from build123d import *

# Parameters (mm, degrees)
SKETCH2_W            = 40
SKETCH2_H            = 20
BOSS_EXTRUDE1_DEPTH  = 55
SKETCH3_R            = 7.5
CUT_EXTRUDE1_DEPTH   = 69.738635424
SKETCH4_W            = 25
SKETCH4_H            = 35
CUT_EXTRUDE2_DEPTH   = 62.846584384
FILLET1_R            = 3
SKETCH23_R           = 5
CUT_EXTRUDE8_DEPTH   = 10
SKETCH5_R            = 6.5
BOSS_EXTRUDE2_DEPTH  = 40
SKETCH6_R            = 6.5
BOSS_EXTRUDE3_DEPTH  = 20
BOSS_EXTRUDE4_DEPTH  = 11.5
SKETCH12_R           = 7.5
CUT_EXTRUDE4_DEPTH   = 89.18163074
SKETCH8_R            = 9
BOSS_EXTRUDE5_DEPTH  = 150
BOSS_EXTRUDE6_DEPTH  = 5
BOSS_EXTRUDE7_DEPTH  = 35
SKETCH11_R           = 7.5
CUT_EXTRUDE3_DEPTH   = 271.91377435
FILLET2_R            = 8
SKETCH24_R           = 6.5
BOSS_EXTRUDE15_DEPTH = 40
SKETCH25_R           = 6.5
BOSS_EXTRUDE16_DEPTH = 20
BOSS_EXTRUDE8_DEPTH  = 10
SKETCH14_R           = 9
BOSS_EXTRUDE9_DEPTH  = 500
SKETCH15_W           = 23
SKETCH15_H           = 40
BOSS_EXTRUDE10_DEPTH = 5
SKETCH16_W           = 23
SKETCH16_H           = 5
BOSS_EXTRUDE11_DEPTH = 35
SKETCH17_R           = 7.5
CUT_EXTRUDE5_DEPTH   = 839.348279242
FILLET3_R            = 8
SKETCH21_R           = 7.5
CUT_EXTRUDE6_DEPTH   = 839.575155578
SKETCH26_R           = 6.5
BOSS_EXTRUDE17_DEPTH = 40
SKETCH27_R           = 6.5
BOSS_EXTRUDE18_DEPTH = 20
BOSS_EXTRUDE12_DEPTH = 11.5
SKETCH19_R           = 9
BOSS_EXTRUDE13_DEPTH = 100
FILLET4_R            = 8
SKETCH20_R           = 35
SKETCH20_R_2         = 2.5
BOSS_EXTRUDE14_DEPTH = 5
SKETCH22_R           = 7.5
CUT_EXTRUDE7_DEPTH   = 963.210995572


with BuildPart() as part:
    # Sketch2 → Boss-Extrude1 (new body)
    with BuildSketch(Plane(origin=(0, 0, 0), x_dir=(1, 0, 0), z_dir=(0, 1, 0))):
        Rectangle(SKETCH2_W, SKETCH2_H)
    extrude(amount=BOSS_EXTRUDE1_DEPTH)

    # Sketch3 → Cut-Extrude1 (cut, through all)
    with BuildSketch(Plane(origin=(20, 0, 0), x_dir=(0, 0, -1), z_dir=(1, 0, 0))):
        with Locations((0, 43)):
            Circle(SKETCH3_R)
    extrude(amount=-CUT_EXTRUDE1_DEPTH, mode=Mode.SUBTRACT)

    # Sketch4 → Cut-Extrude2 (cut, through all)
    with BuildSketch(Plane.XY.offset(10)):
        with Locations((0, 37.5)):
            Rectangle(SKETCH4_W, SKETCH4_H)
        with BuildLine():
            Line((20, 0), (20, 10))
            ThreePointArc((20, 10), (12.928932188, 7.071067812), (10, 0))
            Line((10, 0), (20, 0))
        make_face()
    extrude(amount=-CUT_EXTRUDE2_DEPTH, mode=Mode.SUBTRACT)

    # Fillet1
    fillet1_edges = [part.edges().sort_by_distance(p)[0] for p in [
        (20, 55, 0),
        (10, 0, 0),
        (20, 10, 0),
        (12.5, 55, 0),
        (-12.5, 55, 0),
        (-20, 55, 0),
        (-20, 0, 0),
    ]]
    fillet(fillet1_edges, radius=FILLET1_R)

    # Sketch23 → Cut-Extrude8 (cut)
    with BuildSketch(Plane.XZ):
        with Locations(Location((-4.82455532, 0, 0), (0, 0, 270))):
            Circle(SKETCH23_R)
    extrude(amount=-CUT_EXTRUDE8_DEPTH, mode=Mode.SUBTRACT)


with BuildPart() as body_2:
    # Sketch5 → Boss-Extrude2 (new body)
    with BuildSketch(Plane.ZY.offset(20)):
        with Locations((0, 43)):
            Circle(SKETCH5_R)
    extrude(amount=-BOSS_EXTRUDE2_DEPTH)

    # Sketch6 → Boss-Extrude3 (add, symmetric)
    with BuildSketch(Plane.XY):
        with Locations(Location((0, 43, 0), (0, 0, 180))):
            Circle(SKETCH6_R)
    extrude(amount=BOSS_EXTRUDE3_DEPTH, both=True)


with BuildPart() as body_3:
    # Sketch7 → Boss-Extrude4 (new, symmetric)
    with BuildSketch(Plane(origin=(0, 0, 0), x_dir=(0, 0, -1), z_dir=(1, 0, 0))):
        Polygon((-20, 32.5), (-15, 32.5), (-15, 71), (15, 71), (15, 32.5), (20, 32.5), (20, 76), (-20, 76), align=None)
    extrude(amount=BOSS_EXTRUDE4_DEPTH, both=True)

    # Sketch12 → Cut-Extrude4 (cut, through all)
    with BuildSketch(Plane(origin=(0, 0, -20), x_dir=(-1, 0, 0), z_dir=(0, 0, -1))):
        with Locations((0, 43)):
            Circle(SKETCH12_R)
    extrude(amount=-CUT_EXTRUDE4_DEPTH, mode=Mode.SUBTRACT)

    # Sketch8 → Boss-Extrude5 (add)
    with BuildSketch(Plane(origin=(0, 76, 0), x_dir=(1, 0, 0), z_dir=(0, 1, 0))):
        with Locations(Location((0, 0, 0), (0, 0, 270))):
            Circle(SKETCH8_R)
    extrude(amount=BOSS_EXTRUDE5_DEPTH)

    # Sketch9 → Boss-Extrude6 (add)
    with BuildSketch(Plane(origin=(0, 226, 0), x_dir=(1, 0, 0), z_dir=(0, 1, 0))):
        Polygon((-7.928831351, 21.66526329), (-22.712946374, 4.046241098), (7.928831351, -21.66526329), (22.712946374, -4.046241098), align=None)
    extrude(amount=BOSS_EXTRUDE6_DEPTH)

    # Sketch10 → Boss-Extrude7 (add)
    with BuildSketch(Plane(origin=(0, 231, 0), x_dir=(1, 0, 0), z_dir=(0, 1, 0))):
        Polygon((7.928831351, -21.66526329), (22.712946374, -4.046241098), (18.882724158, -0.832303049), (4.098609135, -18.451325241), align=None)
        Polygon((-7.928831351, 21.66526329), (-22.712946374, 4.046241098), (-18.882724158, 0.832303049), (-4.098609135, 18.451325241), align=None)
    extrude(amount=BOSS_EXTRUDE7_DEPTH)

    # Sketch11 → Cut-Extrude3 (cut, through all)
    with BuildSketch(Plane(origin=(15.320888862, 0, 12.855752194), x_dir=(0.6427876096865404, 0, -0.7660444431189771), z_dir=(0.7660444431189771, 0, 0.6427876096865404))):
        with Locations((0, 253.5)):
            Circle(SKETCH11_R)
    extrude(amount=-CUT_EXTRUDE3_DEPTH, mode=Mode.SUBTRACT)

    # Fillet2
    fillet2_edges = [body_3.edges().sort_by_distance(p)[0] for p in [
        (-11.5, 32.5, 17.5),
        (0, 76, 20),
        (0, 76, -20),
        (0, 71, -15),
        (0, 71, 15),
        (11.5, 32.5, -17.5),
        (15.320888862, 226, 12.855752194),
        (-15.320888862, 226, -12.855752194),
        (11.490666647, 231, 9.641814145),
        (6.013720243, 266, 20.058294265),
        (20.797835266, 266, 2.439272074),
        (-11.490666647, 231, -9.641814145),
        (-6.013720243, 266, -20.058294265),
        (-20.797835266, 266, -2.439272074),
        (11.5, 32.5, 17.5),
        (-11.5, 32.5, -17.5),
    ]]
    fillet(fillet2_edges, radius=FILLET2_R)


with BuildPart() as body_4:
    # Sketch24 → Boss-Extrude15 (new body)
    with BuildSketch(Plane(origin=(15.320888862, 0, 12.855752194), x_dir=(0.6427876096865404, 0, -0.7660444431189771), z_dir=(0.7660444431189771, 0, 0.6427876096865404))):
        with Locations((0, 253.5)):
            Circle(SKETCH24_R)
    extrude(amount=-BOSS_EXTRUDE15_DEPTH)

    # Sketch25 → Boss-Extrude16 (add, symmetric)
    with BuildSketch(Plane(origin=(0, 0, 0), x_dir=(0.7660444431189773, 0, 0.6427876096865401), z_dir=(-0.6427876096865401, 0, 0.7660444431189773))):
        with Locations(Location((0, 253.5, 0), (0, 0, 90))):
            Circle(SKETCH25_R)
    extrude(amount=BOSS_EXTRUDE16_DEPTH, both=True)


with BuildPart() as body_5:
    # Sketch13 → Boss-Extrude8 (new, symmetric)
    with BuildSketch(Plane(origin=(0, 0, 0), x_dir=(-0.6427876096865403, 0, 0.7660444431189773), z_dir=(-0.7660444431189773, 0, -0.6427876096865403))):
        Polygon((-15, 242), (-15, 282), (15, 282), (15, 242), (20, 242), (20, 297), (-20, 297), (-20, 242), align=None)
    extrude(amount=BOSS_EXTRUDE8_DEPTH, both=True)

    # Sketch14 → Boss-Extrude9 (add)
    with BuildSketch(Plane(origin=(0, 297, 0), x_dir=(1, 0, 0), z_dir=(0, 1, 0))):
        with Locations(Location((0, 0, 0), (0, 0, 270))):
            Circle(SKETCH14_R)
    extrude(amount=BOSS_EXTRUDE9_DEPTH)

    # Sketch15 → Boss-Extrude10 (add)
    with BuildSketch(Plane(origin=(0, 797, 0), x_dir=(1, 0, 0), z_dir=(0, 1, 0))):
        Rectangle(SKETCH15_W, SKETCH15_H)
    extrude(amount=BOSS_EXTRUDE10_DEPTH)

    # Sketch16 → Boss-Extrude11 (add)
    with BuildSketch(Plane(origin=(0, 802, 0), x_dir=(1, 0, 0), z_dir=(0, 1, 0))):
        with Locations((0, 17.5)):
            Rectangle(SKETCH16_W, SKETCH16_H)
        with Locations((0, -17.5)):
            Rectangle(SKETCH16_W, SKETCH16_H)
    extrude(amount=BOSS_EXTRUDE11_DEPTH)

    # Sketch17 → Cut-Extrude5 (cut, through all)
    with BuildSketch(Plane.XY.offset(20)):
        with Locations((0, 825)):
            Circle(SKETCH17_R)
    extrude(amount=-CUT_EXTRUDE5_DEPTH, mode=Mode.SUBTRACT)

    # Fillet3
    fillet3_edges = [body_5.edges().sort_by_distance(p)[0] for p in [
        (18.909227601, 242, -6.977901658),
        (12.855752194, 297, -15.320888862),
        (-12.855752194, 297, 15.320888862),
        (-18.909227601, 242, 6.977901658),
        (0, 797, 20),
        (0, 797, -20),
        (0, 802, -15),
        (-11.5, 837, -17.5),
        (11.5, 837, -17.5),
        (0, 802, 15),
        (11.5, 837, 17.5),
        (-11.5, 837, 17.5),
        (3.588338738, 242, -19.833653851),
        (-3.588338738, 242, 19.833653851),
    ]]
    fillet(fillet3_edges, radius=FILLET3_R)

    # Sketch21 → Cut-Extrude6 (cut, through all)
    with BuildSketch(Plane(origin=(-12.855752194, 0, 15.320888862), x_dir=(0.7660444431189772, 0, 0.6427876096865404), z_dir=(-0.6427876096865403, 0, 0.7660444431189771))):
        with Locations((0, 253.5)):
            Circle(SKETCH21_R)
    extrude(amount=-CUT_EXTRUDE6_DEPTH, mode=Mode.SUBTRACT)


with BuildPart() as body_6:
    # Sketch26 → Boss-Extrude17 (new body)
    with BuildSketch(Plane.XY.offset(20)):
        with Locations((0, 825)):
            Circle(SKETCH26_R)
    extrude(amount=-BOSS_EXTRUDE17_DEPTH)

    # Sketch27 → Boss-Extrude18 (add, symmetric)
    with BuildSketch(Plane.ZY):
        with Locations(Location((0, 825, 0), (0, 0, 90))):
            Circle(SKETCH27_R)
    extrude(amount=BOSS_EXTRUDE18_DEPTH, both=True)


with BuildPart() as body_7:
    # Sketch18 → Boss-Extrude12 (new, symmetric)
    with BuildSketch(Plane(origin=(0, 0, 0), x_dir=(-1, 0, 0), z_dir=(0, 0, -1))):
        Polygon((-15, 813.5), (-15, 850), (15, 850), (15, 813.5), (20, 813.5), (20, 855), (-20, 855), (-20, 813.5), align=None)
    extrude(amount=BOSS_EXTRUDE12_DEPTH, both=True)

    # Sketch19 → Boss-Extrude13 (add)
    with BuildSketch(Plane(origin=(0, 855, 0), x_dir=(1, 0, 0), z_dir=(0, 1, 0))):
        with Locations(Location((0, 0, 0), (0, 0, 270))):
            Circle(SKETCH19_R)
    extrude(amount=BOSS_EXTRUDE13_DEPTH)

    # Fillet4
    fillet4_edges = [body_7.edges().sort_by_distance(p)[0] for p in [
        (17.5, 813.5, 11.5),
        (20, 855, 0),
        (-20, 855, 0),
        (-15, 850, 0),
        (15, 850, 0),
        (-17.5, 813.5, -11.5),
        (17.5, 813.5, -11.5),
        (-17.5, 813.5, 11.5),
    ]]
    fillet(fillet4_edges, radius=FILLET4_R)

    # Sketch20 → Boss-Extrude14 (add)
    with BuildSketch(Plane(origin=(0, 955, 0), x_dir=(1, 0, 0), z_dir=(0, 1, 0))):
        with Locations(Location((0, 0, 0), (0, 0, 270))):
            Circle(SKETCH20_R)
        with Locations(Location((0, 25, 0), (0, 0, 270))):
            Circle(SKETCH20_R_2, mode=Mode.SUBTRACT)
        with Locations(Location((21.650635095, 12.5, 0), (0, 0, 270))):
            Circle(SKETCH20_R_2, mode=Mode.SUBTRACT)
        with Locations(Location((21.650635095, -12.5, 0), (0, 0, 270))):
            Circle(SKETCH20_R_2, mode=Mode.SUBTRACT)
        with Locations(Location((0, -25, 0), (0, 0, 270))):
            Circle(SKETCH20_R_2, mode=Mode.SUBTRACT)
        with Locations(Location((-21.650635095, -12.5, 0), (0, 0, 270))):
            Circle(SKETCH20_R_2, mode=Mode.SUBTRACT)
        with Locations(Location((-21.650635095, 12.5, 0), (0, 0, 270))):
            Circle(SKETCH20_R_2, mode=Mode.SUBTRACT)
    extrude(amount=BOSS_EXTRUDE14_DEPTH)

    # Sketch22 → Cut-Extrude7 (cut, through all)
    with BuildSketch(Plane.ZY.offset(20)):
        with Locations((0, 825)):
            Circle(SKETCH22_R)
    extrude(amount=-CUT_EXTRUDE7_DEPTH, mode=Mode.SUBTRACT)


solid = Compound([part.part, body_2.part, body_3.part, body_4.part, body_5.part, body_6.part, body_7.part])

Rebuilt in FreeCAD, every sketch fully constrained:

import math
import FreeCAD as App
import Part
import Sketcher
from FreeCAD import Vector
Q = App.Units.Quantity


def edges_at(feature, points):
    """Names of the edges that pass closest to the given points."""
    edges = feature.Shape.Edges
    near = lambda p: min(range(len(edges)), key=lambda i: edges[i].distToShape(Part.Vertex(*p))[0])
    return sorted({f"Edge{near(p) + 1}" for p in points})

doc = App.newDocument("Part")
body = doc.addObject("PartDesign::Body", "Body")

sketch1 = body.newObject("Sketcher::SketchObject", "Sketch")
sketch1.AttachmentSupport = (doc.getObject("XZ_Plane"), [""])
sketch1.MapMode = "FlatFace"
sketch1.addGeometry(Part.LineSegment(Vector(-20, -10, 0), Vector(-20, 10, 0)), False)
sketch1.addGeometry(Part.LineSegment(Vector(-20, 10, 0), Vector(20, 10, 0)), False)
sketch1.addGeometry(Part.LineSegment(Vector(20, 10, 0), Vector(20, -10, 0)), False)
sketch1.addGeometry(Part.LineSegment(Vector(20, -10, 0), Vector(-20, -10, 0)), False)
sketch1.addConstraint(Sketcher.Constraint("Coincident", 0, 2, 1, 1))
sketch1.addConstraint(Sketcher.Constraint("Coincident", 1, 2, 2, 1))
sketch1.addConstraint(Sketcher.Constraint("Coincident", 2, 2, 3, 1))
sketch1.addConstraint(Sketcher.Constraint("Coincident", 3, 2, 0, 1))
sketch1.addConstraint(Sketcher.Constraint("Vertical", 0))
sketch1.addConstraint(Sketcher.Constraint("Horizontal", 1))
sketch1.addConstraint(Sketcher.Constraint("Vertical", 2))
sketch1.addConstraint(Sketcher.Constraint("Horizontal", 3))
sketch1.addConstraint(Sketcher.Constraint("Symmetric", 0, 2, 2, 2, -1, 1))
sketch1.addConstraint(Sketcher.Constraint("DistanceX", 1, 1, 1, 2, Q("40 mm")))
sketch1.addConstraint(Sketcher.Constraint("DistanceY", 0, 1, 0, 2, Q("20 mm")))
pad1 = body.newObject("PartDesign::Pad", "Pad")
pad1.Profile = sketch1
pad1.Length = 55
pad1.Reversed = True

sketch2 = body.newObject("Sketcher::SketchObject", "Sketch001")
sketch2.AttachmentSupport = (doc.getObject("YZ_Plane"), [""])
sketch2.MapMode = "FlatFace"
sketch2.AttachmentOffset = App.Placement(Vector(0, 0, 20), App.Rotation())
sketch2.addGeometry(Part.Circle(Vector(43, 0, 0), Vector(0, 0, 1), 8), False)
sketch2.addConstraint(Sketcher.Constraint("PointOnObject", 0, 3, -1))
sketch2.addConstraint(Sketcher.Constraint("Diameter", 0, Q("15 mm")))
sketch2.addConstraint(Sketcher.Constraint("DistanceX", -1, 1, 0, 3, Q("43 mm")))
pocket1 = body.newObject("PartDesign::Pocket", "Pocket")
pocket1.Profile = sketch2
pocket1.Type = "ThroughAll"

sketch3 = body.newObject("Sketcher::SketchObject", "Sketch002")
sketch3.AttachmentSupport = (doc.getObject("XY_Plane"), [""])
sketch3.MapMode = "FlatFace"
sketch3.AttachmentOffset = App.Placement(Vector(0, 0, 10), App.Rotation())
sketch3.addGeometry(Part.LineSegment(Vector(-12, 55, 0), Vector(-12, 20, 0)), False)
sketch3.addGeometry(Part.LineSegment(Vector(-12, 20, 0), Vector(12, 20, 0)), False)
sketch3.addGeometry(Part.LineSegment(Vector(12, 20, 0), Vector(12, 55, 0)), False)
sketch3.addGeometry(Part.LineSegment(Vector(12, 55, 0), Vector(-12, 55, 0)), False)
sketch3.addGeometry(Part.LineSegment(Vector(20, 0, 0), Vector(20, 10, 0)), False)
sketch3.addGeometry(Part.ArcOfCircle(Part.Circle(Vector(20, 0, 0), Vector(0, 0, 1), 10), math.radians(90), math.radians(180)), False)
sketch3.addGeometry(Part.LineSegment(Vector(10, 0, 0), Vector(20, 0, 0)), False)
sketch3.addConstraint(Sketcher.Constraint("Coincident", 0, 2, 1, 1))
sketch3.addConstraint(Sketcher.Constraint("Coincident", 1, 2, 2, 1))
sketch3.addConstraint(Sketcher.Constraint("Coincident", 2, 2, 3, 1))
sketch3.addConstraint(Sketcher.Constraint("Coincident", 3, 2, 0, 1))
sketch3.addConstraint(Sketcher.Constraint("Coincident", 4, 2, 5, 1))
sketch3.addConstraint(Sketcher.Constraint("Coincident", 5, 2, 6, 1))
sketch3.addConstraint(Sketcher.Constraint("Coincident", 6, 2, 4, 1))
sketch3.addConstraint(Sketcher.Constraint("Vertical", 0))
sketch3.addConstraint(Sketcher.Constraint("Horizontal", 1))
sketch3.addConstraint(Sketcher.Constraint("Vertical", 2))
sketch3.addConstraint(Sketcher.Constraint("Horizontal", 3))
sketch3.addConstraint(Sketcher.Constraint("Vertical", 4))
sketch3.addConstraint(Sketcher.Constraint("Horizontal", 6))
sketch3.addConstraint(Sketcher.Constraint("Coincident", 6, 2, 5, 3))
sketch3.addConstraint(Sketcher.Constraint("PointOnObject", 5, 3, -1))
sketch3.addConstraint(Sketcher.Constraint("Radius", 5, Q("10 mm")))
sketch3.addConstraint(Sketcher.Constraint("DistanceX", 1, 1, 1, 2, Q("25 mm")))
sketch3.addConstraint(Sketcher.Constraint("DistanceY", 0, 2, 0, 1, Q("35 mm")))
sketch3.addConstraint(Sketcher.Constraint("DistanceX", -1, 1, 5, 3, Q("20 mm")))
sketch3.addConstraint(Sketcher.Constraint("DistanceY", -1, 1, 0, 2, Q("20 mm")))
sketch3.addConstraint(Sketcher.Constraint("DistanceX", 0, 2, -1, 1, Q("12.5 mm")))
pocket2 = body.newObject("PartDesign::Pocket", "Pocket001")
pocket2.Profile = sketch3
pocket2.Type = "ThroughAll"
doc.recompute()

fillet = body.newObject("PartDesign::Fillet", "Fillet")
fillet.Base = (pocket2, edges_at(pocket2, [
    (20, 55, 0),
    (10, 0, 0),
    (20, 10, 0),
    (12.5, 55, 0),
    (-12.5, 55, 0),
    (-20, 55, 0),
    (-20, 0, 0),
]))
fillet.Radius = 3

sketch4 = body.newObject("Sketcher::SketchObject", "Sketch003")
sketch4.AttachmentSupport = (doc.getObject("XZ_Plane"), [""])
sketch4.MapMode = "FlatFace"
sketch4.addGeometry(Part.Circle(Vector(-5, 0, 0), Vector(0, 0, 1), 5), False)
sketch4.addConstraint(Sketcher.Constraint("PointOnObject", 0, 3, -1))
sketch4.addConstraint(Sketcher.Constraint("Diameter", 0, Q("10 mm")))
sketch4.addConstraint(Sketcher.Constraint("DistanceX", 0, 3, -1, 1, Q("4.824555 mm")))
pocket3 = body.newObject("PartDesign::Pocket", "Pocket002")
pocket3.Profile = sketch4
pocket3.Length = 10
body2 = doc.addObject("PartDesign::Body", "Body001")

sketch5 = body2.newObject("Sketcher::SketchObject", "Sketch004")
sketch5.AttachmentSupport = (doc.getObject("YZ_Plane001"), [""])
sketch5.MapMode = "FlatFace"
sketch5.AttachmentOffset = App.Placement(Vector(0, 0, -20), App.Rotation())
sketch5.addGeometry(Part.Circle(Vector(43, 0, 0), Vector(0, 0, 1), 6), False)
sketch5.addConstraint(Sketcher.Constraint("PointOnObject", 0, 3, -1))
sketch5.addConstraint(Sketcher.Constraint("Diameter", 0, Q("13 mm")))
sketch5.addConstraint(Sketcher.Constraint("DistanceX", -1, 1, 0, 3, Q("43 mm")))
pad2 = body2.newObject("PartDesign::Pad", "Pad001")
pad2.Profile = sketch5
pad2.Length = 40

sketch6 = body2.newObject("Sketcher::SketchObject", "Sketch005")
sketch6.AttachmentSupport = (doc.getObject("XY_Plane001"), [""])
sketch6.MapMode = "FlatFace"
sketch6.addGeometry(Part.Circle(Vector(0, 43, 0), Vector(0, 0, 1), 6), False)
sketch6.addConstraint(Sketcher.Constraint("PointOnObject", 0, 3, -2))
sketch6.addConstraint(Sketcher.Constraint("Diameter", 0, Q("13 mm")))
sketch6.addConstraint(Sketcher.Constraint("DistanceY", -1, 1, 0, 3, Q("43 mm")))
pad3 = body2.newObject("PartDesign::Pad", "Pad002")
pad3.Profile = sketch6
pad3.Length = 40
pad3.Midplane = True
body3 = doc.addObject("PartDesign::Body", "Body002")

sketch7 = body3.newObject("Sketcher::SketchObject", "Sketch006")
sketch7.AttachmentSupport = (doc.getObject("YZ_Plane002"), [""])
sketch7.MapMode = "FlatFace"
sketch7.addGeometry(Part.LineSegment(Vector(32, 20, 0), Vector(32, 15, 0)), False)
sketch7.addGeometry(Part.LineSegment(Vector(32, 15, 0), Vector(71, 15, 0)), False)
sketch7.addGeometry(Part.LineSegment(Vector(71, 15, 0), Vector(71, -15, 0)), False)
sketch7.addGeometry(Part.LineSegment(Vector(71, -15, 0), Vector(32, -15, 0)), False)
sketch7.addGeometry(Part.LineSegment(Vector(32, -15, 0), Vector(32, -20, 0)), False)
sketch7.addGeometry(Part.LineSegment(Vector(32, -20, 0), Vector(76, -20, 0)), False)
sketch7.addGeometry(Part.LineSegment(Vector(76, -20, 0), Vector(76, 20, 0)), False)
sketch7.addGeometry(Part.LineSegment(Vector(76, 20, 0), Vector(32, 20, 0)), False)
sketch7.addConstraint(Sketcher.Constraint("Coincident", 0, 2, 1, 1))
sketch7.addConstraint(Sketcher.Constraint("Coincident", 1, 2, 2, 1))
sketch7.addConstraint(Sketcher.Constraint("Coincident", 2, 2, 3, 1))
sketch7.addConstraint(Sketcher.Constraint("Coincident", 3, 2, 4, 1))
sketch7.addConstraint(Sketcher.Constraint("Coincident", 4, 2, 5, 1))
sketch7.addConstraint(Sketcher.Constraint("Coincident", 5, 2, 6, 1))
sketch7.addConstraint(Sketcher.Constraint("Coincident", 6, 2, 7, 1))
sketch7.addConstraint(Sketcher.Constraint("Coincident", 7, 2, 0, 1))
sketch7.addConstraint(Sketcher.Constraint("Vertical", 0))
sketch7.addConstraint(Sketcher.Constraint("Horizontal", 1))
sketch7.addConstraint(Sketcher.Constraint("Vertical", 2))
sketch7.addConstraint(Sketcher.Constraint("Horizontal", 3))
sketch7.addConstraint(Sketcher.Constraint("Vertical", 4))
sketch7.addConstraint(Sketcher.Constraint("Horizontal", 5))
sketch7.addConstraint(Sketcher.Constraint("Vertical", 6))
sketch7.addConstraint(Sketcher.Constraint("Horizontal", 7))
sketch7.addConstraint(Sketcher.Constraint("Symmetric", 0, 2, 3, 2, -1))
sketch7.addConstraint(Sketcher.Constraint("Equal", 0, 4))
sketch7.addConstraint(Sketcher.Constraint("DistanceY", 0, 2, 0, 1, Q("5 mm")))
sketch7.addConstraint(Sketcher.Constraint("DistanceY", 2, 2, 2, 1, Q("30 mm")))
sketch7.addConstraint(Sketcher.Constraint("DistanceX", 1, 1, 1, 2, Q("38.5 mm")))
sketch7.addConstraint(Sketcher.Constraint("DistanceX", 5, 1, 5, 2, Q("43.5 mm")))
sketch7.addConstraint(Sketcher.Constraint("DistanceX", -1, 1, 1, 2, Q("71 mm")))
pad4 = body3.newObject("PartDesign::Pad", "Pad003")
pad4.Profile = sketch7
pad4.Length = 23
pad4.Midplane = True

sketch8 = body3.newObject("Sketcher::SketchObject", "Sketch007")
sketch8.AttachmentSupport = (doc.getObject("XY_Plane002"), [""])
sketch8.MapMode = "FlatFace"
sketch8.AttachmentOffset = App.Placement(Vector(0, 0, -20), App.Rotation())
sketch8.addGeometry(Part.Circle(Vector(0, 43, 0), Vector(0, 0, 1), 8), False)
sketch8.addConstraint(Sketcher.Constraint("PointOnObject", 0, 3, -2))
sketch8.addConstraint(Sketcher.Constraint("Diameter", 0, Q("15 mm")))
sketch8.addConstraint(Sketcher.Constraint("DistanceY", -1, 1, 0, 3, Q("43 mm")))
pocket4 = body3.newObject("PartDesign::Pocket", "Pocket003")
pocket4.Profile = sketch8
pocket4.Type = "ThroughAll"
pocket4.Reversed = True

sketch9 = body3.newObject("Sketcher::SketchObject", "Sketch008")
sketch9.AttachmentSupport = (doc.getObject("XZ_Plane002"), [""])
sketch9.MapMode = "FlatFace"
sketch9.AttachmentOffset = App.Placement(Vector(0, 0, -76), App.Rotation())
sketch9.addGeometry(Part.Circle(Vector(0, 0, 0), Vector(0, 0, 1), 9), False)
sketch9.addConstraint(Sketcher.Constraint("Coincident", 0, 3, -1, 1))
sketch9.addConstraint(Sketcher.Constraint("Diameter", 0, Q("18 mm")))
pad5 = body3.newObject("PartDesign::Pad", "Pad004")
pad5.Profile = sketch9
pad5.Length = 150
pad5.Reversed = True

sketch10 = body3.newObject("Sketcher::SketchObject", "Sketch009")
sketch10.AttachmentSupport = (doc.getObject("XZ_Plane002"), [""])
sketch10.MapMode = "FlatFace"
sketch10.AttachmentOffset = App.Placement(Vector(0, 0, -226), App.Rotation())
sketch10.addGeometry(Part.LineSegment(Vector(-8, -22, 0), Vector(-23, -4, 0)), False)
sketch10.addGeometry(Part.LineSegment(Vector(-23, -4, 0), Vector(8, 22, 0)), False)
sketch10.addGeometry(Part.LineSegment(Vector(8, 22, 0), Vector(23, 4, 0)), False)
sketch10.addGeometry(Part.LineSegment(Vector(23, 4, 0), Vector(-8, -22, 0)), False)
sketch10.addConstraint(Sketcher.Constraint("Coincident", 0, 2, 1, 1))
sketch10.addConstraint(Sketcher.Constraint("Coincident", 1, 2, 2, 1))
sketch10.addConstraint(Sketcher.Constraint("Coincident", 2, 2, 3, 1))
sketch10.addConstraint(Sketcher.Constraint("Coincident", 3, 2, 0, 1))
sketch10.addConstraint(Sketcher.Constraint("Symmetric", 0, 2, 2, 2, -1, 1))
sketch10.addConstraint(Sketcher.Constraint("Symmetric", 1, 2, 3, 2, -1, 1))
sketch10.addConstraint(Sketcher.Constraint("Perpendicular", 0, 1))
sketch10.addConstraint(Sketcher.Constraint("Angle", 0, Q("130 deg")))
sketch10.addConstraint(Sketcher.Constraint("Distance", 0, Q("23 mm")))
sketch10.addConstraint(Sketcher.Constraint("Distance", 1, Q("40 mm")))
pad6 = body3.newObject("PartDesign::Pad", "Pad005")
pad6.Profile = sketch10
pad6.Length = 5
pad6.Reversed = True

sketch11 = body3.newObject("Sketcher::SketchObject", "Sketch010")
sketch11.AttachmentSupport = (doc.getObject("XZ_Plane002"), [""])
sketch11.MapMode = "FlatFace"
sketch11.AttachmentOffset = App.Placement(Vector(0, 0, -231), App.Rotation())
sketch11.addGeometry(Part.LineSegment(Vector(8, 22, 0), Vector(23, 4, 0)), False)
sketch11.addGeometry(Part.LineSegment(Vector(23, 4, 0), Vector(19, 1, 0)), False)
sketch11.addGeometry(Part.LineSegment(Vector(19, 1, 0), Vector(4, 18, 0)), False)
sketch11.addGeometry(Part.LineSegment(Vector(4, 18, 0), Vector(8, 22, 0)), False)
sketch11.addGeometry(Part.LineSegment(Vector(-8, -22, 0), Vector(-23, -4, 0)), False)
sketch11.addGeometry(Part.LineSegment(Vector(-23, -4, 0), Vector(-19, -1, 0)), False)
sketch11.addGeometry(Part.LineSegment(Vector(-19, -1, 0), Vector(-4, -18, 0)), False)
sketch11.addGeometry(Part.LineSegment(Vector(-4, -18, 0), Vector(-8, -22, 0)), False)
sketch11.addConstraint(Sketcher.Constraint("Coincident", 0, 2, 1, 1))
sketch11.addConstraint(Sketcher.Constraint("Coincident", 1, 2, 2, 1))
sketch11.addConstraint(Sketcher.Constraint("Coincident", 2, 2, 3, 1))
sketch11.addConstraint(Sketcher.Constraint("Coincident", 3, 2, 0, 1))
sketch11.addConstraint(Sketcher.Constraint("Coincident", 4, 2, 5, 1))
sketch11.addConstraint(Sketcher.Constraint("Coincident", 5, 2, 6, 1))
sketch11.addConstraint(Sketcher.Constraint("Coincident", 6, 2, 7, 1))
sketch11.addConstraint(Sketcher.Constraint("Coincident", 7, 2, 4, 1))
sketch11.addConstraint(Sketcher.Constraint("Symmetric", 0, 2, 4, 2, -1, 1))
sketch11.addConstraint(Sketcher.Constraint("Symmetric", 1, 2, 5, 2, -1, 1))
sketch11.addConstraint(Sketcher.Constraint("Symmetric", 2, 2, 6, 2, -1, 1))
sketch11.addConstraint(Sketcher.Constraint("Symmetric", 3, 2, 7, 2, -1, 1))
sketch11.addConstraint(Sketcher.Constraint("Perpendicular", 0, 1))
sketch11.addConstraint(Sketcher.Constraint("Perpendicular", 1, 2))
sketch11.addConstraint(Sketcher.Constraint("Perpendicular", 2, 3))
sketch11.addConstraint(Sketcher.Constraint("Angle", 0, Q("-50 deg")))
sketch11.addConstraint(Sketcher.Constraint("Distance", 0, Q("23 mm")))
sketch11.addConstraint(Sketcher.Constraint("Distance", 1, Q("5 mm")))
sketch11.addConstraint(Sketcher.Constraint("DistanceY", -1, 1, 0, 2, Q("4.046241 mm")))
sketch11.addConstraint(Sketcher.Constraint("DistanceX", -1, 1, 2, 2, Q("4.098609 mm")))
pad7 = body3.newObject("PartDesign::Pad", "Pad006")
pad7.Profile = sketch11
pad7.Length = 35
pad7.Reversed = True

sketch12 = body3.newObject("Sketcher::SketchObject", "Sketch011")
sketch12.Placement = App.Placement(Vector(15.320889, 0, 12.855752), App.Rotation(Vector(0.64278761, 0, -0.766044443), Vector(0, 1, 0), Vector(0.766044443, 0, 0.64278761), "ZXY"))
sketch12.addGeometry(Part.Circle(Vector(0, 254, 0), Vector(0, 0, 1), 8), False)
sketch12.addConstraint(Sketcher.Constraint("PointOnObject", 0, 3, -2))
sketch12.addConstraint(Sketcher.Constraint("Diameter", 0, Q("15 mm")))
sketch12.addConstraint(Sketcher.Constraint("DistanceY", -1, 1, 0, 3, Q("253.5 mm")))
pocket5 = body3.newObject("PartDesign::Pocket", "Pocket004")
pocket5.Profile = sketch12
pocket5.Type = "ThroughAll"
doc.recompute()

fillet2 = body3.newObject("PartDesign::Fillet", "Fillet001")
fillet2.Base = (pocket5, edges_at(pocket5, [
    (-11.5, 32.5, 17.5),
    (0, 76, 20),
    (0, 76, -20),
    (0, 71, -15),
    (0, 71, 15),
    (11.5, 32.5, -17.5),
    (15.321, 226, 12.856),
    (-15.321, 226, -12.856),
    (11.491, 231, 9.642),
    (6.014, 266, 20.058),
    (20.798, 266, 2.439),
    (-11.491, 231, -9.642),
    (-6.014, 266, -20.058),
    (-20.798, 266, -2.439),
    (11.5, 32.5, 17.5),
    (-11.5, 32.5, -17.5),
]))
fillet2.Radius = 8
body4 = doc.addObject("PartDesign::Body", "Body003")

sketch13 = body4.newObject("Sketcher::SketchObject", "Sketch012")
sketch13.Placement = App.Placement(Vector(15.320889, 0, 12.855752), App.Rotation(Vector(0.64278761, 0, -0.766044443), Vector(0, 1, 0), Vector(0.766044443, 0, 0.64278761), "ZXY"))
sketch13.addGeometry(Part.Circle(Vector(0, 254, 0), Vector(0, 0, 1), 6), False)
sketch13.addConstraint(Sketcher.Constraint("PointOnObject", 0, 3, -2))
sketch13.addConstraint(Sketcher.Constraint("Diameter", 0, Q("13 mm")))
sketch13.addConstraint(Sketcher.Constraint("DistanceY", -1, 1, 0, 3, Q("253.5 mm")))
pad8 = body4.newObject("PartDesign::Pad", "Pad007")
pad8.Profile = sketch13
pad8.Length = 40
pad8.Reversed = True

sketch14 = body4.newObject("Sketcher::SketchObject", "Sketch013")
sketch14.Placement = App.Placement(Vector(0, 0, 0), App.Rotation(Vector(0.766044443, 0, 0.64278761), Vector(0, 1, 0), Vector(-0.64278761, 0, 0.766044443), "ZXY"))
sketch14.addGeometry(Part.Circle(Vector(0, 254, 0), Vector(0, 0, 1), 6), False)
sketch14.addConstraint(Sketcher.Constraint("PointOnObject", 0, 3, -2))
sketch14.addConstraint(Sketcher.Constraint("Diameter", 0, Q("13 mm")))
sketch14.addConstraint(Sketcher.Constraint("DistanceY", -1, 1, 0, 3, Q("253.5 mm")))
pad9 = body4.newObject("PartDesign::Pad", "Pad008")
pad9.Profile = sketch14
pad9.Length = 40
pad9.Midplane = True
body5 = doc.addObject("PartDesign::Body", "Body004")

sketch15 = body5.newObject("Sketcher::SketchObject", "Sketch014")
sketch15.Placement = App.Placement(Vector(0, 0, 0), App.Rotation(Vector(-0.64278761, 0, 0.766044443), Vector(0, 1, 0), Vector(-0.766044443, 0, -0.64278761), "ZXY"))
sketch15.addGeometry(Part.LineSegment(Vector(-15, 242, 0), Vector(-15, 282, 0)), False)
sketch15.addGeometry(Part.LineSegment(Vector(-15, 282, 0), Vector(15, 282, 0)), False)
sketch15.addGeometry(Part.LineSegment(Vector(15, 282, 0), Vector(15, 242, 0)), False)
sketch15.addGeometry(Part.LineSegment(Vector(15, 242, 0), Vector(20, 242, 0)), False)
sketch15.addGeometry(Part.LineSegment(Vector(20, 242, 0), Vector(20, 297, 0)), False)
sketch15.addGeometry(Part.LineSegment(Vector(20, 297, 0), Vector(-20, 297, 0)), False)
sketch15.addGeometry(Part.LineSegment(Vector(-20, 297, 0), Vector(-20, 242, 0)), False)
sketch15.addGeometry(Part.LineSegment(Vector(-20, 242, 0), Vector(-15, 242, 0)), False)
sketch15.addConstraint(Sketcher.Constraint("Coincident", 0, 2, 1, 1))
sketch15.addConstraint(Sketcher.Constraint("Coincident", 1, 2, 2, 1))
sketch15.addConstraint(Sketcher.Constraint("Coincident", 2, 2, 3, 1))
sketch15.addConstraint(Sketcher.Constraint("Coincident", 3, 2, 4, 1))
sketch15.addConstraint(Sketcher.Constraint("Coincident", 4, 2, 5, 1))
sketch15.addConstraint(Sketcher.Constraint("Coincident", 5, 2, 6, 1))
sketch15.addConstraint(Sketcher.Constraint("Coincident", 6, 2, 7, 1))
sketch15.addConstraint(Sketcher.Constraint("Coincident", 7, 2, 0, 1))
sketch15.addConstraint(Sketcher.Constraint("Vertical", 0))
sketch15.addConstraint(Sketcher.Constraint("Horizontal", 1))
sketch15.addConstraint(Sketcher.Constraint("Vertical", 2))
sketch15.addConstraint(Sketcher.Constraint("Horizontal", 3))
sketch15.addConstraint(Sketcher.Constraint("Vertical", 4))
sketch15.addConstraint(Sketcher.Constraint("Horizontal", 5))
sketch15.addConstraint(Sketcher.Constraint("Vertical", 6))
sketch15.addConstraint(Sketcher.Constraint("Horizontal", 7))
sketch15.addConstraint(Sketcher.Constraint("Symmetric", 3, 2, 6, 2, -2))
sketch15.addConstraint(Sketcher.Constraint("Equal", 3, 7))
sketch15.addConstraint(Sketcher.Constraint("Equal", 5, 0))
sketch15.addConstraint(Sketcher.Constraint("DistanceX", 1, 1, 1, 2, Q("30 mm")))
sketch15.addConstraint(Sketcher.Constraint("DistanceX", 3, 1, 3, 2, Q("5 mm")))
sketch15.addConstraint(Sketcher.Constraint("DistanceY", 4, 1, 4, 2, Q("55 mm")))
sketch15.addConstraint(Sketcher.Constraint("DistanceY", -1, 1, 0, 2, Q("282 mm")))
pad10 = body5.newObject("PartDesign::Pad", "Pad009")
pad10.Profile = sketch15
pad10.Length = 20
pad10.Midplane = True

sketch16 = body5.newObject("Sketcher::SketchObject", "Sketch015")
sketch16.AttachmentSupport = (doc.getObject("XZ_Plane004"), [""])
sketch16.MapMode = "FlatFace"
sketch16.AttachmentOffset = App.Placement(Vector(0, 0, -297), App.Rotation())
sketch16.addGeometry(Part.Circle(Vector(0, 0, 0), Vector(0, 0, 1), 9), False)
sketch16.addConstraint(Sketcher.Constraint("Coincident", 0, 3, -1, 1))
sketch16.addConstraint(Sketcher.Constraint("Diameter", 0, Q("18 mm")))
pad11 = body5.newObject("PartDesign::Pad", "Pad010")
pad11.Profile = sketch16
pad11.Length = 500
pad11.Reversed = True

sketch17 = body5.newObject("Sketcher::SketchObject", "Sketch016")
sketch17.AttachmentSupport = (doc.getObject("XZ_Plane004"), [""])
sketch17.MapMode = "FlatFace"
sketch17.AttachmentOffset = App.Placement(Vector(0, 0, -797), App.Rotation())
sketch17.addGeometry(Part.LineSegment(Vector(-12, -20, 0), Vector(-12, 20, 0)), False)
sketch17.addGeometry(Part.LineSegment(Vector(-12, 20, 0), Vector(12, 20, 0)), False)
sketch17.addGeometry(Part.LineSegment(Vector(12, 20, 0), Vector(12, -20, 0)), False)
sketch17.addGeometry(Part.LineSegment(Vector(12, -20, 0), Vector(-12, -20, 0)), False)
sketch17.addConstraint(Sketcher.Constraint("Coincident", 0, 2, 1, 1))
sketch17.addConstraint(Sketcher.Constraint("Coincident", 1, 2, 2, 1))
sketch17.addConstraint(Sketcher.Constraint("Coincident", 2, 2, 3, 1))
sketch17.addConstraint(Sketcher.Constraint("Coincident", 3, 2, 0, 1))
sketch17.addConstraint(Sketcher.Constraint("Vertical", 0))
sketch17.addConstraint(Sketcher.Constraint("Horizontal", 1))
sketch17.addConstraint(Sketcher.Constraint("Vertical", 2))
sketch17.addConstraint(Sketcher.Constraint("Horizontal", 3))
sketch17.addConstraint(Sketcher.Constraint("Symmetric", 0, 2, 2, 2, -1, 1))
sketch17.addConstraint(Sketcher.Constraint("DistanceX", 1, 1, 1, 2, Q("23 mm")))
sketch17.addConstraint(Sketcher.Constraint("DistanceY", 0, 1, 0, 2, Q("40 mm")))
pad12 = body5.newObject("PartDesign::Pad", "Pad011")
pad12.Profile = sketch17
pad12.Length = 5
pad12.Reversed = True

sketch18 = body5.newObject("Sketcher::SketchObject", "Sketch017")
sketch18.AttachmentSupport = (doc.getObject("XZ_Plane004"), [""])
sketch18.MapMode = "FlatFace"
sketch18.AttachmentOffset = App.Placement(Vector(0, 0, -802), App.Rotation())
sketch18.addGeometry(Part.LineSegment(Vector(-12, -20, 0), Vector(-12, -15, 0)), False)
sketch18.addGeometry(Part.LineSegment(Vector(-12, -15, 0), Vector(12, -15, 0)), False)
sketch18.addGeometry(Part.LineSegment(Vector(12, -15, 0), Vector(12, -20, 0)), False)
sketch18.addGeometry(Part.LineSegment(Vector(12, -20, 0), Vector(-12, -20, 0)), False)
sketch18.addGeometry(Part.LineSegment(Vector(-12, 15, 0), Vector(-12, 20, 0)), False)
sketch18.addGeometry(Part.LineSegment(Vector(-12, 20, 0), Vector(12, 20, 0)), False)
sketch18.addGeometry(Part.LineSegment(Vector(12, 20, 0), Vector(12, 15, 0)), False)
sketch18.addGeometry(Part.LineSegment(Vector(12, 15, 0), Vector(-12, 15, 0)), False)
sketch18.addConstraint(Sketcher.Constraint("Coincident", 0, 2, 1, 1))
sketch18.addConstraint(Sketcher.Constraint("Coincident", 1, 2, 2, 1))
sketch18.addConstraint(Sketcher.Constraint("Coincident", 2, 2, 3, 1))
sketch18.addConstraint(Sketcher.Constraint("Coincident", 3, 2, 0, 1))
sketch18.addConstraint(Sketcher.Constraint("Coincident", 4, 2, 5, 1))
sketch18.addConstraint(Sketcher.Constraint("Coincident", 5, 2, 6, 1))
sketch18.addConstraint(Sketcher.Constraint("Coincident", 6, 2, 7, 1))
sketch18.addConstraint(Sketcher.Constraint("Coincident", 7, 2, 4, 1))
sketch18.addConstraint(Sketcher.Constraint("Vertical", 0))
sketch18.addConstraint(Sketcher.Constraint("Horizontal", 1))
sketch18.addConstraint(Sketcher.Constraint("Vertical", 2))
sketch18.addConstraint(Sketcher.Constraint("Horizontal", 3))
sketch18.addConstraint(Sketcher.Constraint("Vertical", 4))
sketch18.addConstraint(Sketcher.Constraint("Horizontal", 5))
sketch18.addConstraint(Sketcher.Constraint("Vertical", 6))
sketch18.addConstraint(Sketcher.Constraint("Horizontal", 7))
sketch18.addConstraint(Sketcher.Constraint("Symmetric", 2, 2, 4, 2, -1, 1))
sketch18.addConstraint(Sketcher.Constraint("Symmetric", 0, 2, 6, 2, -1, 1))
sketch18.addConstraint(Sketcher.Constraint("Vertical", 3, 2, 4, 2))
sketch18.addConstraint(Sketcher.Constraint("DistanceX", 1, 1, 1, 2, Q("23 mm")))
sketch18.addConstraint(Sketcher.Constraint("DistanceY", 0, 1, 0, 2, Q("5 mm")))
sketch18.addConstraint(Sketcher.Constraint("DistanceY", 0, 2, -1, 1, Q("15 mm")))
pad13 = body5.newObject("PartDesign::Pad", "Pad012")
pad13.Profile = sketch18
pad13.Length = 35
pad13.Reversed = True

sketch19 = body5.newObject("Sketcher::SketchObject", "Sketch018")
sketch19.AttachmentSupport = (doc.getObject("XY_Plane004"), [""])
sketch19.MapMode = "FlatFace"
sketch19.AttachmentOffset = App.Placement(Vector(0, 0, 20), App.Rotation())
sketch19.addGeometry(Part.Circle(Vector(0, 825, 0), Vector(0, 0, 1), 8), False)
sketch19.addConstraint(Sketcher.Constraint("PointOnObject", 0, 3, -2))
sketch19.addConstraint(Sketcher.Constraint("Diameter", 0, Q("15 mm")))
sketch19.addConstraint(Sketcher.Constraint("DistanceY", -1, 1, 0, 3, Q("825 mm")))
pocket6 = body5.newObject("PartDesign::Pocket", "Pocket005")
pocket6.Profile = sketch19
pocket6.Type = "ThroughAll"
doc.recompute()

fillet3 = body5.newObject("PartDesign::Fillet", "Fillet002")
fillet3.Base = (pocket6, edges_at(pocket6, [
    (18.909, 242, -6.978),
    (12.856, 297, -15.321),
    (-12.856, 297, 15.321),
    (-18.909, 242, 6.978),
    (0, 797, 20),
    (0, 797, -20),
    (0, 802, -15),
    (-11.5, 837, -17.5),
    (11.5, 837, -17.5),
    (0, 802, 15),
    (11.5, 837, 17.5),
    (-11.5, 837, 17.5),
    (3.588, 242, -19.834),
    (-3.588, 242, 19.834),
]))
fillet3.Radius = 8

sketch20 = body5.newObject("Sketcher::SketchObject", "Sketch019")
sketch20.Placement = App.Placement(Vector(-12.855752, 0, 15.320889), App.Rotation(Vector(0.766044443, 0, 0.64278761), Vector(0, 1, 0), Vector(-0.64278761, 0, 0.766044443), "ZXY"))
sketch20.addGeometry(Part.Circle(Vector(0, 254, 0), Vector(0, 0, 1), 8), False)
sketch20.addConstraint(Sketcher.Constraint("PointOnObject", 0, 3, -2))
sketch20.addConstraint(Sketcher.Constraint("Diameter", 0, Q("15 mm")))
sketch20.addConstraint(Sketcher.Constraint("DistanceY", -1, 1, 0, 3, Q("253.5 mm")))
pocket7 = body5.newObject("PartDesign::Pocket", "Pocket006")
pocket7.Profile = sketch20
pocket7.Type = "ThroughAll"
body6 = doc.addObject("PartDesign::Body", "Body005")

sketch21 = body6.newObject("Sketcher::SketchObject", "Sketch020")
sketch21.AttachmentSupport = (doc.getObject("XY_Plane005"), [""])
sketch21.MapMode = "FlatFace"
sketch21.AttachmentOffset = App.Placement(Vector(0, 0, 20), App.Rotation())
sketch21.addGeometry(Part.Circle(Vector(0, 825, 0), Vector(0, 0, 1), 6), False)
sketch21.addConstraint(Sketcher.Constraint("PointOnObject", 0, 3, -2))
sketch21.addConstraint(Sketcher.Constraint("Diameter", 0, Q("13 mm")))
sketch21.addConstraint(Sketcher.Constraint("DistanceY", -1, 1, 0, 3, Q("825 mm")))
pad14 = body6.newObject("PartDesign::Pad", "Pad013")
pad14.Profile = sketch21
pad14.Length = 40
pad14.Reversed = True

sketch22 = body6.newObject("Sketcher::SketchObject", "Sketch021")
sketch22.AttachmentSupport = (doc.getObject("YZ_Plane005"), [""])
sketch22.MapMode = "FlatFace"
sketch22.addGeometry(Part.Circle(Vector(825, 0, 0), Vector(0, 0, 1), 6), False)
sketch22.addConstraint(Sketcher.Constraint("PointOnObject", 0, 3, -1))
sketch22.addConstraint(Sketcher.Constraint("Diameter", 0, Q("13 mm")))
sketch22.addConstraint(Sketcher.Constraint("DistanceX", -1, 1, 0, 3, Q("825 mm")))
pad15 = body6.newObject("PartDesign::Pad", "Pad014")
pad15.Profile = sketch22
pad15.Length = 40
pad15.Midplane = True
body7 = doc.addObject("PartDesign::Body", "Body006")

sketch23 = body7.newObject("Sketcher::SketchObject", "Sketch022")
sketch23.AttachmentSupport = (doc.getObject("XY_Plane006"), [""])
sketch23.MapMode = "FlatFace"
sketch23.addGeometry(Part.LineSegment(Vector(15, 814, 0), Vector(15, 850, 0)), False)
sketch23.addGeometry(Part.LineSegment(Vector(15, 850, 0), Vector(-15, 850, 0)), False)
sketch23.addGeometry(Part.LineSegment(Vector(-15, 850, 0), Vector(-15, 814, 0)), False)
sketch23.addGeometry(Part.LineSegment(Vector(-15, 814, 0), Vector(-20, 814, 0)), False)
sketch23.addGeometry(Part.LineSegment(Vector(-20, 814, 0), Vector(-20, 855, 0)), False)
sketch23.addGeometry(Part.LineSegment(Vector(-20, 855, 0), Vector(20, 855, 0)), False)
sketch23.addGeometry(Part.LineSegment(Vector(20, 855, 0), Vector(20, 814, 0)), False)
sketch23.addGeometry(Part.LineSegment(Vector(20, 814, 0), Vector(15, 814, 0)), False)
sketch23.addConstraint(Sketcher.Constraint("Coincident", 0, 2, 1, 1))
sketch23.addConstraint(Sketcher.Constraint("Coincident", 1, 2, 2, 1))
sketch23.addConstraint(Sketcher.Constraint("Coincident", 2, 2, 3, 1))
sketch23.addConstraint(Sketcher.Constraint("Coincident", 3, 2, 4, 1))
sketch23.addConstraint(Sketcher.Constraint("Coincident", 4, 2, 5, 1))
sketch23.addConstraint(Sketcher.Constraint("Coincident", 5, 2, 6, 1))
sketch23.addConstraint(Sketcher.Constraint("Coincident", 6, 2, 7, 1))
sketch23.addConstraint(Sketcher.Constraint("Coincident", 7, 2, 0, 1))
sketch23.addConstraint(Sketcher.Constraint("Vertical", 0))
sketch23.addConstraint(Sketcher.Constraint("Horizontal", 1))
sketch23.addConstraint(Sketcher.Constraint("Vertical", 2))
sketch23.addConstraint(Sketcher.Constraint("Horizontal", 3))
sketch23.addConstraint(Sketcher.Constraint("Vertical", 4))
sketch23.addConstraint(Sketcher.Constraint("Horizontal", 5))
sketch23.addConstraint(Sketcher.Constraint("Vertical", 6))
sketch23.addConstraint(Sketcher.Constraint("Horizontal", 7))
sketch23.addConstraint(Sketcher.Constraint("Symmetric", 3, 2, 6, 2, -2))
sketch23.addConstraint(Sketcher.Constraint("Equal", 3, 7))
sketch23.addConstraint(Sketcher.Constraint("DistanceX", 1, 2, 1, 1, Q("30 mm")))
sketch23.addConstraint(Sketcher.Constraint("DistanceX", 3, 2, 3, 1, Q("5 mm")))
sketch23.addConstraint(Sketcher.Constraint("DistanceY", 0, 1, 0, 2, Q("36.5 mm")))
sketch23.addConstraint(Sketcher.Constraint("DistanceY", 4, 1, 4, 2, Q("41.5 mm")))
sketch23.addConstraint(Sketcher.Constraint("DistanceY", -1, 1, 0, 2, Q("850 mm")))
pad16 = body7.newObject("PartDesign::Pad", "Pad015")
pad16.Profile = sketch23
pad16.Length = 23
pad16.Midplane = True

sketch24 = body7.newObject("Sketcher::SketchObject", "Sketch023")
sketch24.AttachmentSupport = (doc.getObject("XZ_Plane006"), [""])
sketch24.MapMode = "FlatFace"
sketch24.AttachmentOffset = App.Placement(Vector(0, 0, -855), App.Rotation())
sketch24.addGeometry(Part.Circle(Vector(0, 0, 0), Vector(0, 0, 1), 9), False)
sketch24.addConstraint(Sketcher.Constraint("Coincident", 0, 3, -1, 1))
sketch24.addConstraint(Sketcher.Constraint("Diameter", 0, Q("18 mm")))
pad17 = body7.newObject("PartDesign::Pad", "Pad016")
pad17.Profile = sketch24
pad17.Length = 100
pad17.Reversed = True
doc.recompute()

fillet4 = body7.newObject("PartDesign::Fillet", "Fillet003")
fillet4.Base = (pad17, edges_at(pad17, [
    (17.5, 813.5, 11.5),
    (20, 855, 0),
    (-20, 855, 0),
    (-15, 850, 0),
    (15, 850, 0),
    (-17.5, 813.5, -11.5),
    (17.5, 813.5, -11.5),
    (-17.5, 813.5, 11.5),
]))
fillet4.Radius = 8

sketch25 = body7.newObject("Sketcher::SketchObject", "Sketch024")
sketch25.AttachmentSupport = (doc.getObject("XZ_Plane006"), [""])
sketch25.MapMode = "FlatFace"
sketch25.AttachmentOffset = App.Placement(Vector(0, 0, -955), App.Rotation())
sketch25.addGeometry(Part.Circle(Vector(0, 0, 0), Vector(0, 0, 1), 35), False)
sketch25.addGeometry(Part.Circle(Vector(-21.7, -12.5, 0), Vector(0, 0, 1), 2.5), False)
sketch25.addGeometry(Part.Circle(Vector(0, -25, 0), Vector(0, 0, 1), 2.5), False)
sketch25.addGeometry(Part.Circle(Vector(-21.7, 12.5, 0), Vector(0, 0, 1), 2.5), False)
sketch25.addGeometry(Part.Circle(Vector(21.7, -12.5, 0), Vector(0, 0, 1), 2.5), False)
sketch25.addGeometry(Part.Circle(Vector(0, 25, 0), Vector(0, 0, 1), 2.5), False)
sketch25.addGeometry(Part.Circle(Vector(21.7, 12.5, 0), Vector(0, 0, 1), 2.5), False)
sketch25.addConstraint(Sketcher.Constraint("Coincident", 0, 3, -1, 1))
sketch25.addConstraint(Sketcher.Constraint("Equal", 1, 2))
sketch25.addConstraint(Sketcher.Constraint("Equal", 2, 3))
sketch25.addConstraint(Sketcher.Constraint("Equal", 3, 4))
sketch25.addConstraint(Sketcher.Constraint("Equal", 4, 5))
sketch25.addConstraint(Sketcher.Constraint("Equal", 5, 6))
sketch25.addConstraint(Sketcher.Constraint("Symmetric", 3, 3, 4, 3, -1, 1))
sketch25.addConstraint(Sketcher.Constraint("Symmetric", 2, 3, 5, 3, -1, 1))
sketch25.addConstraint(Sketcher.Constraint("Symmetric", 1, 3, 6, 3, -1, 1))
sketch25.addConstraint(Sketcher.Constraint("Symmetric", 1, 3, 4, 3, -2))
sketch25.addConstraint(Sketcher.Constraint("PointOnObject", 2, 3, -2))
sketch25.addConstraint(Sketcher.Constraint("Diameter", 0, Q("70 mm")))
sketch25.addConstraint(Sketcher.Constraint("Diameter", 1, Q("5 mm")))
sketch25.addConstraint(Sketcher.Constraint("DistanceY", 2, 3, -1, 1, Q("25 mm")))
sketch25.addConstraint(Sketcher.Constraint("DistanceY", 1, 3, 3, 3, Q("25 mm")))
sketch25.addConstraint(Sketcher.Constraint("DistanceX", 1, 3, 4, 3, Q("43.30127 mm")))
pad18 = body7.newObject("PartDesign::Pad", "Pad017")
pad18.Profile = sketch25
pad18.Length = 5
pad18.Reversed = True

sketch26 = body7.newObject("Sketcher::SketchObject", "Sketch025")
sketch26.AttachmentSupport = (doc.getObject("YZ_Plane006"), [""])
sketch26.MapMode = "FlatFace"
sketch26.AttachmentOffset = App.Placement(Vector(0, 0, -20), App.Rotation())
sketch26.addGeometry(Part.Circle(Vector(825, 0, 0), Vector(0, 0, 1), 8), False)
sketch26.addConstraint(Sketcher.Constraint("PointOnObject", 0, 3, -1))
sketch26.addConstraint(Sketcher.Constraint("Diameter", 0, Q("15 mm")))
sketch26.addConstraint(Sketcher.Constraint("DistanceX", -1, 1, 0, 3, Q("825 mm")))
pocket8 = body7.newObject("PartDesign::Pocket", "Pocket007")
pocket8.Profile = sketch26
pocket8.Type = "ThroughAll"
pocket8.Reversed = True

doc.recompute()
